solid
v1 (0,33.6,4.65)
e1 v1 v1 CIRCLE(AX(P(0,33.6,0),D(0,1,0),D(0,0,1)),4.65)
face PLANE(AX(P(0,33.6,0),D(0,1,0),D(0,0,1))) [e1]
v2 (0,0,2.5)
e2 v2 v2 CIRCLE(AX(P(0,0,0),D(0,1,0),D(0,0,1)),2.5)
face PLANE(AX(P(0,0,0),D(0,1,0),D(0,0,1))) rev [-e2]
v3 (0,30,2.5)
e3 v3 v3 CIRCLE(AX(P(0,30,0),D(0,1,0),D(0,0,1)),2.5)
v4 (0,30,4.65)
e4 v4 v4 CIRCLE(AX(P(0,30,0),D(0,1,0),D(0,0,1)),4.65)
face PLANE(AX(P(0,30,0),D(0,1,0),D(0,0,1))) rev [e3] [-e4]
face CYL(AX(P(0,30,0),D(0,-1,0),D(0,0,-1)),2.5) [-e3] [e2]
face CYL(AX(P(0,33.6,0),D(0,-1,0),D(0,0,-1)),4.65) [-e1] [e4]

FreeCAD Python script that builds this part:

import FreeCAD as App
import Part
import Sketcher
Q = App.Units.Quantity

doc = App.newDocument("Part")
body = doc.addObject("PartDesign::Body", "Body")

sketch1 = body.newObject("Sketcher::SketchObject", "Sketch")
sketch1.AttachmentSupport = (doc.getObject("XZ_Plane"), [""])
sketch1.MapMode = "FlatFace"
sketch1.addGeometry(Part.Circle(App.Vector(0, 0, 0), App.Vector(0, 0, 1), 2.5), False)
sketch1.addConstraint([
    Sketcher.Constraint("Coincident", 0, 3, -1, 1),
    Sketcher.Constraint("Diameter", 0, Q("5 mm")),
])
pad1 = body.newObject("PartDesign::Pad", "Pad")
pad1.Profile = sketch1
pad1.Length = 30
pad1.Reversed = True

sketch2 = body.newObject("Sketcher::SketchObject", "Sketch001")
sketch2.AttachmentSupport = (doc.getObject("XZ_Plane"), [""])
sketch2.MapMode = "FlatFace"
sketch2.AttachmentOffset = App.Placement(App.Vector(0, 0, -30), App.Rotation())
sketch2.addGeometry(Part.Circle(App.Vector(0, 0, 0), App.Vector(0, 0, 1), 4.7), False)
sketch2.addConstraint([
    Sketcher.Constraint("Coincident", 0, 3, -1, 1),
    Sketcher.Constraint("Diameter", 0, Q("9.3 mm")),
])
pad2 = body.newObject("PartDesign::Pad", "Pad001")
pad2.Profile = sketch2
pad2.Length = 3.6
pad2.Reversed = True

doc.recompute()
